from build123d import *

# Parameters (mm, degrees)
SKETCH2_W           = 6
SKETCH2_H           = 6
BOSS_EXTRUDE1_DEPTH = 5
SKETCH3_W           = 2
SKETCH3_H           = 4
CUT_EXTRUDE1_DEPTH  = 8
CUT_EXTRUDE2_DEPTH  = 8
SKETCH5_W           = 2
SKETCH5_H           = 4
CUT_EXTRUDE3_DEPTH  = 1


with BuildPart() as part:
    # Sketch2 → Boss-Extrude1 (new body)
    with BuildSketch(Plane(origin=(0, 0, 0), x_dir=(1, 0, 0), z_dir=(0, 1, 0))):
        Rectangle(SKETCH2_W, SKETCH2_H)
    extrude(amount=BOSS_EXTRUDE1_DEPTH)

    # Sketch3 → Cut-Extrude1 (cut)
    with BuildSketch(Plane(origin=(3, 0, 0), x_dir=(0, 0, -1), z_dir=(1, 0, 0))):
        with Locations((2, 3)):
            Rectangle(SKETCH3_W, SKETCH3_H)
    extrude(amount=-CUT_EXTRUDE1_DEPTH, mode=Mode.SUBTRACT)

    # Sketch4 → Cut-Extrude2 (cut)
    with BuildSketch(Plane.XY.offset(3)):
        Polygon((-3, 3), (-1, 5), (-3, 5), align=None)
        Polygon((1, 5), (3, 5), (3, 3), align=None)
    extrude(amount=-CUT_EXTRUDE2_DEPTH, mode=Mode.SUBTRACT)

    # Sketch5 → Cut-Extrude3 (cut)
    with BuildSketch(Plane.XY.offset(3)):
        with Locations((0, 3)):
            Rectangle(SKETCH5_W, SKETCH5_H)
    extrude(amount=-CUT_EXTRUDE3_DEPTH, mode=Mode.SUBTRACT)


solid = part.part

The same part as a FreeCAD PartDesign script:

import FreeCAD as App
import Part
import Sketcher
from FreeCAD import Vector


def add_polygon(sketch, points):
    """Adds a closed chain of lines whose ends are joined by coincident constraints."""
    first, n = sketch.GeometryCount, len(points)
    for a, b in zip(points, points[1:] + points[:1]):
        sketch.addGeometry(Part.LineSegment(App.Vector(*a, 0), App.Vector(*b, 0)), False)
    for i in range(n):
        sketch.addConstraint(Sketcher.Constraint("Coincident", first + i, 2, first + (i + 1) % n, 1))

doc = App.newDocument("Part")
body = doc.addObject("PartDesign::Body", "Body")

# Sketch on XZ plane
sketch1 = doc.addObject("Sketcher::SketchObject", "Sketch")
body.addObject(sketch1)
sketch1.AttachmentSupport = (doc.XZ_Plane, [""])
sketch1.MapMode = "FlatFace"
add_polygon(sketch1, [(-3, -3), (-3, 3), (3, 3), (3, -3)])  # lines 0-3
sketch1.addConstraint(Sketcher.Constraint("Vertical", 0))
sketch1.addConstraint(Sketcher.Constraint("Horizontal", 1))
sketch1.addConstraint(Sketcher.Constraint("Vertical", 2))
sketch1.addConstraint(Sketcher.Constraint("Horizontal", 3))
sketch1.addConstraint(Sketcher.Constraint("Symmetric", 0, 2, 2, 2, -1, 1))
sketch1.addConstraint(Sketcher.Constraint("Equal", 3, 0))
sketch1.addConstraint(Sketcher.Constraint("DistanceX", 1, 1, 1, 2, 6.0))
pad1 = doc.addObject("PartDesign::Pad", "Pad")
body.addObject(pad1)
pad1.Profile = sketch1
pad1.Length = 5
pad1.Reversed = True

# Sketch on YZ plane
sketch2 = doc.addObject("Sketcher::SketchObject", "Sketch001")
body.addObject(sketch2)
sketch2.AttachmentSupport = (doc.YZ_Plane, [""])
sketch2.MapMode = "FlatFace"
sketch2.AttachmentOffset = App.Placement(Vector(0, 0, 3), App.Rotation())
add_polygon(sketch2, [(5, -1), (1, -1), (1, -3), (5, -3)])  # lines 0-3
sketch2.addConstraint(Sketcher.Constraint("Horizontal", 0))
sketch2.addConstraint(Sketcher.Constraint("Vertical", 1))
sketch2.addConstraint(Sketcher.Constraint("Horizontal", 2))
sketch2.addConstraint(Sketcher.Constraint("Vertical", 3))
sketch2.addConstraint(Sketcher.Constraint("DistanceX", 0, 2, 0, 1, 4.0))
sketch2.addConstraint(Sketcher.Constraint("DistanceY", 1, 2, 1, 1, 2.0))
sketch2.addConstraint(Sketcher.Constraint("DistanceX", -1, 1, 0, 2, 1.0))
sketch2.addConstraint(Sketcher.Constraint("DistanceY", 0, 2, -1, 1, 1.0))
pocket1 = doc.addObject("PartDesign::Pocket", "Pocket")
body.addObject(pocket1)
pocket1.Profile = sketch2
pocket1.Length = 8

# Sketch on XY plane
sketch3 = doc.addObject("Sketcher::SketchObject", "Sketch002")
body.addObject(sketch3)
sketch3.AttachmentSupport = (doc.XY_Plane, [""])
sketch3.MapMode = "FlatFace"
sketch3.AttachmentOffset = App.Placement(Vector(0, 0, 3), App.Rotation())
add_polygon(sketch3, [(-3, 3), (-1, 5), (-3, 5)])  # lines 0-2
add_polygon(sketch3, [(3, 5), (1, 5), (3, 3)])  # lines 3-5
sketch3.addConstraint(Sketcher.Constraint("Horizontal", 1))
sketch3.addConstraint(Sketcher.Constraint("Vertical", 2))
sketch3.addConstraint(Sketcher.Constraint("Horizontal", 3))
sketch3.addConstraint(Sketcher.Constraint("Vertical", 5))
sketch3.addConstraint(Sketcher.Constraint("Symmetric", 0, 2, 3, 2, -2))
sketch3.addConstraint(Sketcher.Constraint("Symmetric", 2, 2, 4, 2, -2))
sketch3.addConstraint(Sketcher.Constraint("Perpendicular", 0, 4))
sketch3.addConstraint(Sketcher.Constraint("DistanceX", 1, 2, 1, 1, 2.0))
sketch3.addConstraint(Sketcher.Constraint("DistanceX", 0, 2, -1, 1, 1.0))
sketch3.addConstraint(Sketcher.Constraint("DistanceY", -1, 1, 0, 2, 5.0))
pocket2 = doc.addObject("PartDesign::Pocket", "Pocket001")
body.addObject(pocket2)
pocket2.Profile = sketch3
pocket2.Length = 8

# Sketch on XY plane
sketch4 = doc.addObject("Sketcher::SketchObject", "Sketch003")
body.addObject(sketch4)
sketch4.AttachmentSupport = (doc.XY_Plane, [""])
sketch4.MapMode = "FlatFace"
sketch4.AttachmentOffset = App.Placement(Vector(0, 0, 3), App.Rotation())
add_polygon(sketch4, [(-1, 5), (-1, 1), (1, 1), (1, 5)])  # lines 0-3
sketch4.addConstraint(Sketcher.Constraint("Vertical", 0))
sketch4.addConstraint(Sketcher.Constraint("Horizontal", 1))
sketch4.addConstraint(Sketcher.Constraint("Vertical", 2))
sketch4.addConstraint(Sketcher.Constraint("Horizontal", 3))
sketch4.addConstraint(Sketcher.Constraint("DistanceX", 1, 1, 1, 2, 2.0))
sketch4.addConstraint(Sketcher.Constraint("DistanceY", 0, 2, 0, 1, 4.0))
sketch4.addConstraint(Sketcher.Constraint("DistanceX", 0, 2, -1, 1, 1.0))
sketch4.addConstraint(Sketcher.Constraint("DistanceY", -1, 1, 0, 2, 1.0))
pocket3 = doc.addObject("PartDesign::Pocket", "Pocket002")
body.addObject(pocket3)
pocket3.Profile = sketch4
pocket3.Length = 1

doc.recompute()
